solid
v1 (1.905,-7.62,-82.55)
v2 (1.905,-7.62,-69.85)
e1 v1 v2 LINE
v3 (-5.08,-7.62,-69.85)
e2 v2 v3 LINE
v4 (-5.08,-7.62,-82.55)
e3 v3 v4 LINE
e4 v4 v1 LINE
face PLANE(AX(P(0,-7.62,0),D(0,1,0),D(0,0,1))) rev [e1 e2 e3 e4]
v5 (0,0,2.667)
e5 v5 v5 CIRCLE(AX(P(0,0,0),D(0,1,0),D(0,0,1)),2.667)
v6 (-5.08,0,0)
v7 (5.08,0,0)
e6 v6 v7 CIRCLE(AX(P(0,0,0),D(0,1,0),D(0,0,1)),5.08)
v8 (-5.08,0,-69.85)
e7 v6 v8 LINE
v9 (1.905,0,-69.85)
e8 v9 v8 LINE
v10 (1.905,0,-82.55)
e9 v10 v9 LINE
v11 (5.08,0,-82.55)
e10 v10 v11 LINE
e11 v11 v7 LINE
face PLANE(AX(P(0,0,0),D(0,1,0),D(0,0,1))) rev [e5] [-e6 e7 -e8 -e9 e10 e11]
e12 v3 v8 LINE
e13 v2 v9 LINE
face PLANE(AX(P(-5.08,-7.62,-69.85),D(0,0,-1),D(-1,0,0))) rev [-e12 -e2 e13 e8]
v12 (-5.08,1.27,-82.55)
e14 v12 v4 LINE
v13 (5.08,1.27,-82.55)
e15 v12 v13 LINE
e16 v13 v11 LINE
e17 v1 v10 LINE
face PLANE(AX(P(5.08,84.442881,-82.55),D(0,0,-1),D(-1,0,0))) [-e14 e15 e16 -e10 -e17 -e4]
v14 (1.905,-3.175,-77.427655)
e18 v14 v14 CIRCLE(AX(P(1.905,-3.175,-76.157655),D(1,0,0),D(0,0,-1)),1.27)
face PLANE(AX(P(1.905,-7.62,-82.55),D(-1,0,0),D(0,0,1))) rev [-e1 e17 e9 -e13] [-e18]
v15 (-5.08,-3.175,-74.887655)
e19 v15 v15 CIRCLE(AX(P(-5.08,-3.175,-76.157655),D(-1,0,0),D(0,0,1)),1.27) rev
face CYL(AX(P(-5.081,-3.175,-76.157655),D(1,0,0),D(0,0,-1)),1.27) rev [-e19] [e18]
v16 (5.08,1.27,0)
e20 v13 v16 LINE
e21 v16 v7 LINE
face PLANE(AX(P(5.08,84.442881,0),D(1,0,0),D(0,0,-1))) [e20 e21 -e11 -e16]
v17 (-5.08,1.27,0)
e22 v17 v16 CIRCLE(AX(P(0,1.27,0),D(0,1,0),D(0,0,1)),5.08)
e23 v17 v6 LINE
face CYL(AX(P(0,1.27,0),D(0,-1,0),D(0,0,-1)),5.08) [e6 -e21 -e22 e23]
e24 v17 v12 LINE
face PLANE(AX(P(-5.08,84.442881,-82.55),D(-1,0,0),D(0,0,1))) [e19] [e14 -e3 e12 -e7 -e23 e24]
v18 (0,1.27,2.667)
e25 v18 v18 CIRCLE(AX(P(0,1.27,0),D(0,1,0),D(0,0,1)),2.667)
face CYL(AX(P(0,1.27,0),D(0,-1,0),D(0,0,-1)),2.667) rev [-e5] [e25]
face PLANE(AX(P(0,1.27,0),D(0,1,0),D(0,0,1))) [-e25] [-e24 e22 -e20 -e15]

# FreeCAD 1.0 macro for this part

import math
import FreeCAD as App
import Part
import Sketcher
from FreeCAD import Vector
Q = App.Units.Quantity


def add_polygon(sketch, points):
    """Adds a closed chain of lines whose ends are joined by coincident constraints."""
    first, n = sketch.GeometryCount, len(points)
    for a, b in zip(points, points[1:] + points[:1]):
        sketch.addGeometry(Part.LineSegment(App.Vector(*a, 0), App.Vector(*b, 0)), False)
    for i in range(n):
        sketch.addConstraint(Sketcher.Constraint("Coincident", first + i, 2, first + (i + 1) % n, 1))

doc = App.newDocument("Part")
body = doc.addObject("PartDesign::Body", "Body")

# Sketch on XZ plane
sketch1 = body.newObject("Sketcher::SketchObject", "Sketch")
sketch1.AttachmentSupport = (doc.getObject("XZ_Plane"), [""])
sketch1.MapMode = "FlatFace"
sketch1.addGeometry(Part.Circle(Vector(0, 0, 0), Vector(0, 0, 1), 5.1), False)
sketch1.addGeometry(Part.Circle(Vector(0, 0, 0), Vector(0, 0, 1), 2.7), False)
sketch1.addConstraint(Sketcher.Constraint("Coincident", 0, 3, -1, 1))
sketch1.addConstraint(Sketcher.Constraint("Coincident", 1, 3, -1, 1))
sketch1.addConstraint(Sketcher.Constraint("Diameter", 0, Q("0.4 in")))
sketch1.addConstraint(Sketcher.Constraint("Diameter", 1, Q("0.21 in")))
pad1 = body.newObject("PartDesign::Pad", "Pad")
pad1.Profile = sketch1
pad1.Length = Q("0.05 in")
pad1.Reversed = True

# Sketch on XZ plane
sketch2 = body.newObject("Sketcher::SketchObject", "Sketch001")
sketch2.AttachmentSupport = (doc.getObject("XZ_Plane"), [""])
sketch2.MapMode = "FlatFace"
sketch2.addGeometry(Part.LineSegment(Vector(5, -83, 0), Vector(5, 0, 0)), False)
sketch2.addGeometry(Part.ArcOfCircle(Part.Circle(Vector(0, 0, 0), Vector(0, 0, 1), 5), math.radians(180), math.radians(360)), False)
sketch2.addGeometry(Part.LineSegment(Vector(-5, 0, 0), Vector(-5, -83, 0)), False)
sketch2.addGeometry(Part.LineSegment(Vector(-5, -83, 0), Vector(5, -83, 0)), False)
sketch2.addConstraint(Sketcher.Constraint("Tangent", 0, 2, 1, 2))
sketch2.addConstraint(Sketcher.Constraint("Tangent", 1, 1, 2, 1))
sketch2.addConstraint(Sketcher.Constraint("Coincident", 2, 2, 3, 1))
sketch2.addConstraint(Sketcher.Constraint("Coincident", 3, 2, 0, 1))
sketch2.addConstraint(Sketcher.Constraint("Vertical", 0))
sketch2.addConstraint(Sketcher.Constraint("Vertical", 2))
sketch2.addConstraint(Sketcher.Constraint("Horizontal", 3))
sketch2.addConstraint(Sketcher.Constraint("Coincident", 1, 3, -1, 1))
sketch2.addConstraint(Sketcher.Constraint("Radius", 1, Q("0.2 in")))
sketch2.addConstraint(Sketcher.Constraint("DistanceY", 0, 1, 0, 2, Q("3.25 in")))
pad2 = body.newObject("PartDesign::Pad", "Pad001")
pad2.Profile = sketch2
pad2.Length = Q("0.05 in")
pad2.Reversed = True

# Sketch on XZ plane
sketch3 = body.newObject("Sketcher::SketchObject", "Sketch002")
sketch3.AttachmentSupport = (doc.getObject("XZ_Plane"), [""])
sketch3.MapMode = "FlatFace"
add_polygon(sketch3, [(-5, -70), (-5, -83), (2, -83), (2, -70)])  # lines 0-3
sketch3.addConstraint(Sketcher.Constraint("Vertical", 0))
sketch3.addConstraint(Sketcher.Constraint("Horizontal", 1))
sketch3.addConstraint(Sketcher.Constraint("Vertical", 2))
sketch3.addConstraint(Sketcher.Constraint("Horizontal", 3))
sketch3.addConstraint(Sketcher.Constraint("DistanceY", 0, 2, 0, 1, Q("0.5 in")))
sketch3.addConstraint(Sketcher.Constraint("DistanceX", 0, 2, -1, 1, Q("0.2 in")))
sketch3.addConstraint(Sketcher.Constraint("DistanceX", 1, 1, 1, 2, Q("0.275 in")))
sketch3.addConstraint(Sketcher.Constraint("DistanceY", 0, 2, -1, 1, Q("3.25 in")))
pad3 = body.newObject("PartDesign::Pad", "Pad002")
pad3.Profile = sketch3
pad3.Length = Q("0.3 in")

# Sketch on YZ plane
sketch4 = body.newObject("Sketcher::SketchObject", "Sketch003")
sketch4.AttachmentSupport = (doc.getObject("YZ_Plane"), [""])
sketch4.MapMode = "FlatFace"
sketch4.AttachmentOffset = App.Placement(Vector(0, 0, 0.075 * 25.4), App.Rotation())
sketch4.addGeometry(Part.Circle(Vector(-3.2, -76.2, 0), Vector(0, 0, 1), 1.3), False)
sketch4.addConstraint(Sketcher.Constraint("Diameter", 0, Q("0.1 in")))
sketch4.addConstraint(Sketcher.Constraint("DistanceX", 0, 3, -1, 1, Q("0.125 in")))
sketch4.addConstraint(Sketcher.Constraint("DistanceY", 0, 3, -1, 1, Q("76.157655 mm")))
pocket1 = body.newObject("PartDesign::Pocket", "Pocket")
pocket1.Profile = sketch4
pocket1.Type = "UpToFirst"

doc.recompute()
